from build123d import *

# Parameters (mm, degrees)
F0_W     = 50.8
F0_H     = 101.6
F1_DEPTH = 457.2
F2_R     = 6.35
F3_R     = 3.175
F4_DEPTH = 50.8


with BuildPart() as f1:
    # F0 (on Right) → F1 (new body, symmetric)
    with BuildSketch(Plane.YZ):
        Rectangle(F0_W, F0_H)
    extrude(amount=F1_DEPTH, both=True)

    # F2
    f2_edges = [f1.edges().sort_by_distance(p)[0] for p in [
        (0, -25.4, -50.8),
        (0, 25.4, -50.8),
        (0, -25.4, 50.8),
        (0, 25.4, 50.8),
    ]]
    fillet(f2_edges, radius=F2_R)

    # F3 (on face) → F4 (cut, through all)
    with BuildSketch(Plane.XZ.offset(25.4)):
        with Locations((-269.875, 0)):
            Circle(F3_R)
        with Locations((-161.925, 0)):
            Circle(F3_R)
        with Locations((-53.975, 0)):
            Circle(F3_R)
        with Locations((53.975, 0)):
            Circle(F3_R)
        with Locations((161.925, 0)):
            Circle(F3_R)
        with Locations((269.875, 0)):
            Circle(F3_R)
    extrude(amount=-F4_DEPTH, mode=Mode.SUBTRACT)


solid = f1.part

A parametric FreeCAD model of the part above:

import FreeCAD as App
import Part
import Sketcher

V = App.Vector
Q = App.Units.Quantity


def edges_at(feature, points):
    """Names of the edges that pass closest to the given points."""
    edges = feature.Shape.Edges
    near = lambda p: min(range(len(edges)), key=lambda i: edges[i].distToShape(Part.Vertex(*p))[0])
    return sorted({f"Edge{near(p) + 1}" for p in points})


def add_polygon(sketch, points):
    """Adds a closed chain of lines whose ends are joined by coincident constraints."""
    first, n = sketch.GeometryCount, len(points)
    for a, b in zip(points, points[1:] + points[:1]):
        sketch.addGeometry(Part.LineSegment(App.Vector(*a, 0), App.Vector(*b, 0)), False)
    for i in range(n):
        sketch.addConstraint(Sketcher.Constraint("Coincident", first + i, 2, first + (i + 1) % n, 1))

doc = App.newDocument("Part")
body = doc.addObject("PartDesign::Body", "Body")

# Sketch on YZ plane
sketch1 = doc.addObject("Sketcher::SketchObject", "Sketch")
body.addObject(sketch1)
sketch1.AttachmentSupport = (doc.YZ_Plane, [""])
sketch1.MapMode = "FlatFace"
add_polygon(sketch1, [(-25, 51), (-25, -51), (25, -51), (25, 51)])  # lines 0-3
sketch1.addConstraint([
    Sketcher.Constraint("Vertical", 0),
    Sketcher.Constraint("Horizontal", 1),
    Sketcher.Constraint("Vertical", 2),
    Sketcher.Constraint("Horizontal", 3),
    Sketcher.Constraint("Symmetric", 0, 2, 2, 2, -1, 1),
    Sketcher.Constraint("DistanceX", 1, 1, 1, 2, Q("2 in")),
    Sketcher.Constraint("DistanceY", 0, 2, 0, 1, Q("4 in")),
])
pad1 = doc.addObject("PartDesign::Pad", "Pad")
body.addObject(pad1)
pad1.Profile = sketch1
pad1.Length = Q("36 in")
pad1.Midplane = True
doc.recompute()

fillet = doc.addObject("PartDesign::Fillet", "Fillet")
body.addObject(fillet)
fillet.Base = (pad1, edges_at(pad1, [
    (0, -25.4, -50.8),
    (0, 25.4, -50.8),
    (0, -25.4, 50.8),
    (0, 25.4, 50.8),
]))
fillet.Radius = Q("0.25 in")

# Sketch on XZ plane
sketch2 = doc.addObject("Sketcher::SketchObject", "Sketch001")
body.addObject(sketch2)
sketch2.AttachmentSupport = (doc.XZ_Plane, [""])
sketch2.MapMode = "FlatFace"
sketch2.AttachmentOffset = App.Placement(V(0, 0, 1 * 25.4), App.Rotation())
sketch2.addGeometry([
    Part.Circle(V(-269.9, 0, 0), V(0, 0, 1), 3.2),  # 0
    Part.Circle(V(-161.9, 0, 0), V(0, 0, 1), 3.2),  # 1
    Part.Circle(V(-54, 0, 0), V(0, 0, 1), 3.2),  # 2
    Part.Circle(V(54, 0, 0), V(0, 0, 1), 3.2),  # 3
    Part.Circle(V(161.9, 0, 0), V(0, 0, 1), 3.2),  # 4
    Part.Circle(V(269.9, 0, 0), V(0, 0, 1), 3.2),  # 5
], False)
sketch2.addConstraint([
    Sketcher.Constraint("Equal", 0, 1),
    Sketcher.Constraint("Equal", 1, 2),
    Sketcher.Constraint("Equal", 2, 3),
    Sketcher.Constraint("Equal", 3, 4),
    Sketcher.Constraint("Equal", 4, 5),
    Sketcher.Constraint("Symmetric", 2, 3, 3, 3, -1, 1),
    Sketcher.Constraint("Symmetric", 1, 3, 4, 3, -1, 1),
    Sketcher.Constraint("Symmetric", 0, 3, 5, 3, -1, 1),
    Sketcher.Constraint("PointOnObject", 0, 3, -1),
    Sketcher.Constraint("PointOnObject", 1, 3, -1),
    Sketcher.Constraint("PointOnObject", 2, 3, -1),
    Sketcher.Constraint("Diameter", 0, Q("0.25 in")),
    Sketcher.Constraint("DistanceX", 0, 3, 4, 3, Q("17 in")),
    Sketcher.Constraint("DistanceX", 0, 3, 2, 3, Q("8.5 in")),
    Sketcher.Constraint("DistanceX", 0, 3, 1, 3, Q("4.25 in")),
])
pocket1 = doc.addObject("PartDesign::Pocket", "Pocket")
body.addObject(pocket1)
pocket1.Profile = sketch2
pocket1.Type = "ThroughAll"

doc.recompute()
